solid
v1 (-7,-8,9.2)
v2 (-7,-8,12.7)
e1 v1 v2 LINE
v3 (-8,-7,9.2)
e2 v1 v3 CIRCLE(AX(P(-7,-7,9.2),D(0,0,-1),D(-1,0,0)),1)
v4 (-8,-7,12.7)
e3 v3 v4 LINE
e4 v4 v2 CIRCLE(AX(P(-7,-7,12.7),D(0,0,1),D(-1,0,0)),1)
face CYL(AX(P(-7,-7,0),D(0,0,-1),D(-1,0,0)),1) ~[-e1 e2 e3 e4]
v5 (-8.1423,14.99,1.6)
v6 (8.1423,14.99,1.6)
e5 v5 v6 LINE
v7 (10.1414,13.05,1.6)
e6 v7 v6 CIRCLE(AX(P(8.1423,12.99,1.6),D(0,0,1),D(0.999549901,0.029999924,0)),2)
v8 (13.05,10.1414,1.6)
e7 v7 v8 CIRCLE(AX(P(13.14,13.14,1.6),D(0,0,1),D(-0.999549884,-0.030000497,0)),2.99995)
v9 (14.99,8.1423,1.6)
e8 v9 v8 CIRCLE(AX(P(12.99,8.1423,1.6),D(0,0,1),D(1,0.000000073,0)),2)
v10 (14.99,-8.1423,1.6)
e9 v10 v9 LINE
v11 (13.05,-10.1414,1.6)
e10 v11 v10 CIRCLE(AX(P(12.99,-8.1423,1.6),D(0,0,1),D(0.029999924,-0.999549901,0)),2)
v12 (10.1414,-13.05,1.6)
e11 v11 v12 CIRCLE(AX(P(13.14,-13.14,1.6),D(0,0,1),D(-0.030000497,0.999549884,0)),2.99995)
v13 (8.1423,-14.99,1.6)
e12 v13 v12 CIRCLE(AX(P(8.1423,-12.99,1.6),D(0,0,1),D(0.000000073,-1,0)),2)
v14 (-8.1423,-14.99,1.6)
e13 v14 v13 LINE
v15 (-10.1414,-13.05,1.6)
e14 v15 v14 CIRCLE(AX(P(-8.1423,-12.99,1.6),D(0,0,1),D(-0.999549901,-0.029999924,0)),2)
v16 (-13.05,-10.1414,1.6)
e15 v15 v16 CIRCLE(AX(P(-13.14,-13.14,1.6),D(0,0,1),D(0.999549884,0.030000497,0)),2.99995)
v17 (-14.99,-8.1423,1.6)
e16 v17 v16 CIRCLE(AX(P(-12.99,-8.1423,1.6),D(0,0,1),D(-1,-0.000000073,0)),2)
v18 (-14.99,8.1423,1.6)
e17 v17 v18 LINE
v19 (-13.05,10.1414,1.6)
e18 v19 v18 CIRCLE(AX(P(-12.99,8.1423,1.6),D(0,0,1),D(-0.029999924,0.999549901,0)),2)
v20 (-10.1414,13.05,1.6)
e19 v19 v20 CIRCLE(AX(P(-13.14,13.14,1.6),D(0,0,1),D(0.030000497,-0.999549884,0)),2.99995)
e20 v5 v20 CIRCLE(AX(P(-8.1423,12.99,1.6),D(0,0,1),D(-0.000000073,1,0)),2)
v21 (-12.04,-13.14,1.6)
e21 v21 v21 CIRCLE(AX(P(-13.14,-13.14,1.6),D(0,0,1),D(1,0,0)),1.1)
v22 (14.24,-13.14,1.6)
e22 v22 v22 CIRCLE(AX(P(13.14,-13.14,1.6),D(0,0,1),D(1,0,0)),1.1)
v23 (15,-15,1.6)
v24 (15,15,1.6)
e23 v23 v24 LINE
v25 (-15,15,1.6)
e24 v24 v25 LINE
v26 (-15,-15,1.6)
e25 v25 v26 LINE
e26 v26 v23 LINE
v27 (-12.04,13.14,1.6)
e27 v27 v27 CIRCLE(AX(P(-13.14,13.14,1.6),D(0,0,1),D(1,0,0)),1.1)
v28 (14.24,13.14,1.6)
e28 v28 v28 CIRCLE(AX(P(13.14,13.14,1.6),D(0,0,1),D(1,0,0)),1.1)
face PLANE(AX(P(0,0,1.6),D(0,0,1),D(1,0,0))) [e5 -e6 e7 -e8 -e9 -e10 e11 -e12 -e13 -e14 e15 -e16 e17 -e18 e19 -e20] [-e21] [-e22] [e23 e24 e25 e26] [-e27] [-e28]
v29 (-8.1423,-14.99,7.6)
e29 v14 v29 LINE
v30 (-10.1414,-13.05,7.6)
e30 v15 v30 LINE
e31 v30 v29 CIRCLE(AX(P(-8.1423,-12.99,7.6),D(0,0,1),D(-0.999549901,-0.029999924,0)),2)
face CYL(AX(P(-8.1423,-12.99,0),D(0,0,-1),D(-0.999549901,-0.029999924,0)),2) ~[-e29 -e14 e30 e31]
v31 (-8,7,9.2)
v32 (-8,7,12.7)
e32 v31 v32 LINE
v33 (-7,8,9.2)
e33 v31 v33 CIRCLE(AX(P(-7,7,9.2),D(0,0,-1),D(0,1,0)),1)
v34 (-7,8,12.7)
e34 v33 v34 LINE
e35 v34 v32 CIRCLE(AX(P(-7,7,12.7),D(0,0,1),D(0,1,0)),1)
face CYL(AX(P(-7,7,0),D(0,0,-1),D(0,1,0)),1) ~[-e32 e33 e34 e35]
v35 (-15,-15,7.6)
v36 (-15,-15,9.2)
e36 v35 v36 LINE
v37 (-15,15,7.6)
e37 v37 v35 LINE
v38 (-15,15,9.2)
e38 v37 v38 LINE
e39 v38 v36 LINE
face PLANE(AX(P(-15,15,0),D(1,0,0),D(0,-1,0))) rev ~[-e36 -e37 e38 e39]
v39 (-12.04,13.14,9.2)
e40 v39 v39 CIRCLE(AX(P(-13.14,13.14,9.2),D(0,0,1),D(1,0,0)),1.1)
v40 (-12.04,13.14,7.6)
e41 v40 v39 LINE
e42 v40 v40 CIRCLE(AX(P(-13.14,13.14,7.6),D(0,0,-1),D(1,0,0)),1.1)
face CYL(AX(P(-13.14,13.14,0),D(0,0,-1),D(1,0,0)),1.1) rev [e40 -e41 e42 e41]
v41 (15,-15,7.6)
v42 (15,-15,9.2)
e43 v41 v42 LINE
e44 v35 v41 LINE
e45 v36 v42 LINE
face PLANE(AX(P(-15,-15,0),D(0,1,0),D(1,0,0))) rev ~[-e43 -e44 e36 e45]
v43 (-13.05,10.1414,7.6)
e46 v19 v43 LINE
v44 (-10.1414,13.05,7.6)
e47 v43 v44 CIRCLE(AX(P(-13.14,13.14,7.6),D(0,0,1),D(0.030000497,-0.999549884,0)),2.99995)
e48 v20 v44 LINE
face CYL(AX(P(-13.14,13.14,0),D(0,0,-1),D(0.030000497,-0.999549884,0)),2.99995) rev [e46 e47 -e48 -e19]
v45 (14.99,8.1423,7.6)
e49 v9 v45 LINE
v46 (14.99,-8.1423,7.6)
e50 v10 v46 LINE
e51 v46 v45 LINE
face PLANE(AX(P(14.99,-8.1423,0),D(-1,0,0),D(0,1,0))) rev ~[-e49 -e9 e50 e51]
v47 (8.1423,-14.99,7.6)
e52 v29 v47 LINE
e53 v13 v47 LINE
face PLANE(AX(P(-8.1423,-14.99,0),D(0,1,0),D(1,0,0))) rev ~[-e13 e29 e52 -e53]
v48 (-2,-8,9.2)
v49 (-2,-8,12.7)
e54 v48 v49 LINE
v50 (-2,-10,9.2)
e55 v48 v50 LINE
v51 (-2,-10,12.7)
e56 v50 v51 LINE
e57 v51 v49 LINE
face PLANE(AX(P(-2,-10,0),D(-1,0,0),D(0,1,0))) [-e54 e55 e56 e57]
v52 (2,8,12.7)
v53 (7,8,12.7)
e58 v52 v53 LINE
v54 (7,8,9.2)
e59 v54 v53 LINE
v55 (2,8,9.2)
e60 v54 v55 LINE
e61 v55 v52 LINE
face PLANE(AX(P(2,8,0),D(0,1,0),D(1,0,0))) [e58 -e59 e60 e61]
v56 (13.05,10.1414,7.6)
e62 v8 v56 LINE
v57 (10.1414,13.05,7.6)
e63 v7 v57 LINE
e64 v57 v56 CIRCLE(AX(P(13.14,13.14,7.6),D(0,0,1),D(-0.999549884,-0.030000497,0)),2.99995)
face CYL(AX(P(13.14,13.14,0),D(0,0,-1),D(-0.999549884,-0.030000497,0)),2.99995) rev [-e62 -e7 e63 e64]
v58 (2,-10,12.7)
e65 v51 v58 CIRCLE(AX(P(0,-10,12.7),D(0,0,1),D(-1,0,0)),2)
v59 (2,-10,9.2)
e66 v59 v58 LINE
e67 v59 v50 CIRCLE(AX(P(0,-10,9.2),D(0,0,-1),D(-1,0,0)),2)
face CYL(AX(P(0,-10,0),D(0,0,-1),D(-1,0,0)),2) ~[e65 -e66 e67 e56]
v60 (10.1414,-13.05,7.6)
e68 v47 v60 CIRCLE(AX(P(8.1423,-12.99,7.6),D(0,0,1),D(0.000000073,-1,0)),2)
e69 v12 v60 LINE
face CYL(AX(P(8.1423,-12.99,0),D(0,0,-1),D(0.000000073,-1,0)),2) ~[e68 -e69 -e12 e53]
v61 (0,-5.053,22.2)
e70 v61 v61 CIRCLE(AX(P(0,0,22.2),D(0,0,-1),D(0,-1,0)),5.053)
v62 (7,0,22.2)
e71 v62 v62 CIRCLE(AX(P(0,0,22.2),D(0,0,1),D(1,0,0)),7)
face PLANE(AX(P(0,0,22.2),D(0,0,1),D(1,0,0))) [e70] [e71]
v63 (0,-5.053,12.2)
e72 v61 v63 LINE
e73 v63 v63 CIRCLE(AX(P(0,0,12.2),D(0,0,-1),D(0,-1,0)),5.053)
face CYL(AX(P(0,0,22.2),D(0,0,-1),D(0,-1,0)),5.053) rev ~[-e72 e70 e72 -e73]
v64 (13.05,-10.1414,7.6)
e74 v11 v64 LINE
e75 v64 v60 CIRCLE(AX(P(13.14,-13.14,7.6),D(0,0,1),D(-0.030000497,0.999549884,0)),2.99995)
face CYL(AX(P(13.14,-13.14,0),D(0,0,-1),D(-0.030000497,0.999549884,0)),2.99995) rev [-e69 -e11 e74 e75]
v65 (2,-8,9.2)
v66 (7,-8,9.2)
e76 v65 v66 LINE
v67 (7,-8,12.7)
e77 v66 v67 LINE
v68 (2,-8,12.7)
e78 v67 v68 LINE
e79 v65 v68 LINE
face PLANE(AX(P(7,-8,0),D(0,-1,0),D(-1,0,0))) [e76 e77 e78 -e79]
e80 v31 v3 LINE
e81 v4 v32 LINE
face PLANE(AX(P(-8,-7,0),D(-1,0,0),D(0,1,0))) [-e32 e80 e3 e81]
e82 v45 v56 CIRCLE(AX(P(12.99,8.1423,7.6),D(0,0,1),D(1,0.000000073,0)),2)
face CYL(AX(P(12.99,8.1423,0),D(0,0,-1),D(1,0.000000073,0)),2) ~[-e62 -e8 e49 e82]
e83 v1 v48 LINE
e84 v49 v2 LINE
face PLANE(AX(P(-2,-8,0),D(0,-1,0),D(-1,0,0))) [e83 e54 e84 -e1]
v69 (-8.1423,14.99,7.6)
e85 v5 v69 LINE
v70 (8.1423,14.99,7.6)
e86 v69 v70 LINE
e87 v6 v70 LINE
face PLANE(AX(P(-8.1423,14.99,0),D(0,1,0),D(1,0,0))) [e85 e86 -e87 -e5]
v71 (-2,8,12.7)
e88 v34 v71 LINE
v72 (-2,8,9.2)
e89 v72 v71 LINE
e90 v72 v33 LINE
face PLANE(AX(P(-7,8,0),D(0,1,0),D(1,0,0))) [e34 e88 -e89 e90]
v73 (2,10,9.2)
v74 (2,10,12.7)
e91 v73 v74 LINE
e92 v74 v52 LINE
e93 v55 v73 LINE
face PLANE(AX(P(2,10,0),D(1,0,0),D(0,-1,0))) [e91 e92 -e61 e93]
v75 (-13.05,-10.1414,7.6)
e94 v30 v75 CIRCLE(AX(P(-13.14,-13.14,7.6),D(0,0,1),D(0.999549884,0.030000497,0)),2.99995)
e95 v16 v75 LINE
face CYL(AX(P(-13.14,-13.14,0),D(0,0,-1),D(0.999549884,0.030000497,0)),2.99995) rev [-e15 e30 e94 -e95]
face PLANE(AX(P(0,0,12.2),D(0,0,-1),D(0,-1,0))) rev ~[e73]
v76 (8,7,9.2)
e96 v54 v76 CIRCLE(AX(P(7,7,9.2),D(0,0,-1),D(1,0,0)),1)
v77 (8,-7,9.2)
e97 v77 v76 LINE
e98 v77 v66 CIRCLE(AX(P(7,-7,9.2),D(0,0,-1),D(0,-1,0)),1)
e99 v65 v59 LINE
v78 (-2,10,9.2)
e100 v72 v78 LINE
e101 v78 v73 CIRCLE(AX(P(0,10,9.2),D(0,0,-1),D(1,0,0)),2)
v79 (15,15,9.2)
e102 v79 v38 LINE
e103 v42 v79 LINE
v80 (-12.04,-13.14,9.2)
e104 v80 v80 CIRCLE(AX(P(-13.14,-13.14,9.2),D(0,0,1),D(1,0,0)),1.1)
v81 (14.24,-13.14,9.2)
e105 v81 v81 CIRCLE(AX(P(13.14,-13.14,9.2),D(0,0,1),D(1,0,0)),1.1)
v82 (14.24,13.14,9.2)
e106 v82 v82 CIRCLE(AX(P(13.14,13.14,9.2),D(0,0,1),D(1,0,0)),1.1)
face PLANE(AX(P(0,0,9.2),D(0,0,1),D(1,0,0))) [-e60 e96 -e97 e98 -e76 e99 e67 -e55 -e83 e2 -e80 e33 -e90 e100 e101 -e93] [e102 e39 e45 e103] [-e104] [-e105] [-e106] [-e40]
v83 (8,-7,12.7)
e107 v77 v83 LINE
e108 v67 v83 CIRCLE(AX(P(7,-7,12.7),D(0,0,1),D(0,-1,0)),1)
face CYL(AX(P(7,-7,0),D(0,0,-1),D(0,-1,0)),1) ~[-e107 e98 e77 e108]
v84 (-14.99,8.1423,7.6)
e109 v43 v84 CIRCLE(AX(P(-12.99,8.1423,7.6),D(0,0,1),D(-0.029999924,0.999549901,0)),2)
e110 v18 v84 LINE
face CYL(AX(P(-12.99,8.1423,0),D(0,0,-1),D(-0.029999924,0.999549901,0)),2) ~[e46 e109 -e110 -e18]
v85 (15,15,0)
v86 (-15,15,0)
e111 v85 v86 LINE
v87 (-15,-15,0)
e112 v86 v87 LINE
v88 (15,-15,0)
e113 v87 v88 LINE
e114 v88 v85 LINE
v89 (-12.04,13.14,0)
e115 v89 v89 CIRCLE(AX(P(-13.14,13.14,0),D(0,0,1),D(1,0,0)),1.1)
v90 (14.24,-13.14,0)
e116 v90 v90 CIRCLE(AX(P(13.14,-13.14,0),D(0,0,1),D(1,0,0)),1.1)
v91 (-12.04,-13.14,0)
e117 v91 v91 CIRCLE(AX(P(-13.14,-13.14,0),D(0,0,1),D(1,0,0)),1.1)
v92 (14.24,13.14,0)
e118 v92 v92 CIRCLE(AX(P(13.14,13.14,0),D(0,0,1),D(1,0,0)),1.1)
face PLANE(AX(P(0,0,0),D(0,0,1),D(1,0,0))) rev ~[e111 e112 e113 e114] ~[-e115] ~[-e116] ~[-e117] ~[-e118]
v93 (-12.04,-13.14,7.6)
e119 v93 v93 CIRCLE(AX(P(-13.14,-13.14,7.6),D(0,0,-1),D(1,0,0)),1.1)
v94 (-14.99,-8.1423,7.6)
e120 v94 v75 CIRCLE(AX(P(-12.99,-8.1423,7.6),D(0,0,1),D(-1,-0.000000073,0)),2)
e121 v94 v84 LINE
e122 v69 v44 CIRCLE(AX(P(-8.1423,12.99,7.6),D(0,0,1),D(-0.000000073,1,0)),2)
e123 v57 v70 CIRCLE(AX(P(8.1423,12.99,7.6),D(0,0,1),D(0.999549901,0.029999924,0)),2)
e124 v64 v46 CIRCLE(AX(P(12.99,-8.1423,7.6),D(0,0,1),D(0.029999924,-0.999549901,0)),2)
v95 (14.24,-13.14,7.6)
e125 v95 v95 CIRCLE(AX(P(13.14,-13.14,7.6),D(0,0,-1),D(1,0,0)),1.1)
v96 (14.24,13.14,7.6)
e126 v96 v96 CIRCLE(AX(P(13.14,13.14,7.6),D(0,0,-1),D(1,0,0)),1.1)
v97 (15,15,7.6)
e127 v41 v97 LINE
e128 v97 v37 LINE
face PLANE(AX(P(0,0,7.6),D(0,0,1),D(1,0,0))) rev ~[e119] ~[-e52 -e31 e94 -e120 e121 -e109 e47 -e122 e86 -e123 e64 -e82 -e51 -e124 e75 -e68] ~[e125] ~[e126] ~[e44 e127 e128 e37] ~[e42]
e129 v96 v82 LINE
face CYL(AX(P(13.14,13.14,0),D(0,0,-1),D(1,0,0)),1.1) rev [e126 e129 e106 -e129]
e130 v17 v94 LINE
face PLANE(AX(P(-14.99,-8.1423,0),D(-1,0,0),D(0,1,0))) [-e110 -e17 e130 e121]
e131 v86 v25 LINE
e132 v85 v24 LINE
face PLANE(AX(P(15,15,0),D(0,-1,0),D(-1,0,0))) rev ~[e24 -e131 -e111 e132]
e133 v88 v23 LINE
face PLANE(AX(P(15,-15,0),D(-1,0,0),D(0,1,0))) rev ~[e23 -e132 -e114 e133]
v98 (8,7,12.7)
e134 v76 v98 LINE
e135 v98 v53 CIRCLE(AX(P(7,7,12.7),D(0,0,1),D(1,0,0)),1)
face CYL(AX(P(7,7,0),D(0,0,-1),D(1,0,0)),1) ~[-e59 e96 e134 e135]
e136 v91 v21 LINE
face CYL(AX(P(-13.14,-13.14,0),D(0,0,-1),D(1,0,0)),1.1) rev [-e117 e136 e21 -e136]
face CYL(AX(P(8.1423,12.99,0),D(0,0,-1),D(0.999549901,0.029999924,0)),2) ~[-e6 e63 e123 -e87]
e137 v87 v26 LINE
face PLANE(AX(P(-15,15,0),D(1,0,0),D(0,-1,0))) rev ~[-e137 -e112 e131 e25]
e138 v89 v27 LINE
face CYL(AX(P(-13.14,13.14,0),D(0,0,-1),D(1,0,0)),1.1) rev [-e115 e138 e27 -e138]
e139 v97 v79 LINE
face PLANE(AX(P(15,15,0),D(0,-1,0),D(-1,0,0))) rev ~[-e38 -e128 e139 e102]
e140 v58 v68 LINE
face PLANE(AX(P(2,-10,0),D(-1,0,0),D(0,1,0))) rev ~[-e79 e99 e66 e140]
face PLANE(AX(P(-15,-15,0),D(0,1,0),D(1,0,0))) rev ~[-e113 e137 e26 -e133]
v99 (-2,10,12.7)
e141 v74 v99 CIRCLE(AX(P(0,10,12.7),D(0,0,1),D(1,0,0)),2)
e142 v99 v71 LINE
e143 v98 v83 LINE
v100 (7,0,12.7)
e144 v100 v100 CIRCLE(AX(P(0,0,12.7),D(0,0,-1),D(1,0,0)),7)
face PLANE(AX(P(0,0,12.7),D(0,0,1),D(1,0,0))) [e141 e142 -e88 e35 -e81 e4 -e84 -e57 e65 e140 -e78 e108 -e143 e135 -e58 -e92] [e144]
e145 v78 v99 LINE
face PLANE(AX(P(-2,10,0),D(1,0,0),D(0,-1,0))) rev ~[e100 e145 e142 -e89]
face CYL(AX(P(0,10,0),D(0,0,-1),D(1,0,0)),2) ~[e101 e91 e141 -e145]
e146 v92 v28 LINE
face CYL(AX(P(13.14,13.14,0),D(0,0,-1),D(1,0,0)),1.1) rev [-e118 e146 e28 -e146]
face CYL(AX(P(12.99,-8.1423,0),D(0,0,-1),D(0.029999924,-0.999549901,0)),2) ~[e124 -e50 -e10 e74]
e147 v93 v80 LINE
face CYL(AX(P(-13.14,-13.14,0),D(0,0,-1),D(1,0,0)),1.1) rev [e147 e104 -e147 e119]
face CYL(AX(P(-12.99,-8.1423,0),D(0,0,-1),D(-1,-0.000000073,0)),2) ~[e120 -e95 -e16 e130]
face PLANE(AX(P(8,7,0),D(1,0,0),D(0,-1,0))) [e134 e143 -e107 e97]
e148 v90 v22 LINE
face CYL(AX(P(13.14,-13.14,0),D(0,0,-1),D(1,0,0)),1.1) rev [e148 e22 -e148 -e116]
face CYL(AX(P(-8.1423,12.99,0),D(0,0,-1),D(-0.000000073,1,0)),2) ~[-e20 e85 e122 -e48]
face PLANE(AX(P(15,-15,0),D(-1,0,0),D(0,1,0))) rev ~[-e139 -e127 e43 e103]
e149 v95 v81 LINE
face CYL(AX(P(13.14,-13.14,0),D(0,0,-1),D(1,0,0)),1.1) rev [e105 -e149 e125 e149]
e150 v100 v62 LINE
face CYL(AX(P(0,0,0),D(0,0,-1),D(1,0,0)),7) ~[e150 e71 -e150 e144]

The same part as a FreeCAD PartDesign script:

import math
import FreeCAD as App
import Part
import Sketcher
Q = App.Units.Quantity

doc = App.newDocument("Part")
body = doc.addObject("PartDesign::Body", "Body")

sketch1 = body.newObject("Sketcher::SketchObject", "Sketch")
sketch1.AttachmentSupport = (doc.getObject("XY_Plane"), [""])
sketch1.MapMode = "FlatFace"
sketch1.addGeometry(Part.LineSegment(App.Vector(-15, 15, 0), App.Vector(-15, -15, 0)), False)
sketch1.addGeometry(Part.LineSegment(App.Vector(-15, -15, 0), App.Vector(15, -15, 0)), False)
sketch1.addGeometry(Part.LineSegment(App.Vector(15, -15, 0), App.Vector(15, 15, 0)), False)
sketch1.addGeometry(Part.LineSegment(App.Vector(15, 15, 0), App.Vector(-15, 15, 0)), False)
sketch1.addGeometry(Part.Circle(App.Vector(-13.1, -13.1, 0), App.Vector(0, 0, 1), 1.1), False)
sketch1.addGeometry(Part.Circle(App.Vector(13.1, -13.1, 0), App.Vector(0, 0, 1), 1.1), False)
sketch1.addGeometry(Part.Circle(App.Vector(-13.1, 13.1, 0), App.Vector(0, 0, 1), 1.1), False)
sketch1.addGeometry(Part.Circle(App.Vector(13.1, 13.1, 0), App.Vector(0, 0, 1), 1.1), False)
sketch1.addConstraint(Sketcher.Constraint("Coincident", 0, 2, 1, 1))
sketch1.addConstraint(Sketcher.Constraint("Coincident", 1, 2, 2, 1))
sketch1.addConstraint(Sketcher.Constraint("Coincident", 2, 2, 3, 1))
sketch1.addConstraint(Sketcher.Constraint("Coincident", 3, 2, 0, 1))
sketch1.addConstraint(Sketcher.Constraint("Vertical", 0))
sketch1.addConstraint(Sketcher.Constraint("Horizontal", 1))
sketch1.addConstraint(Sketcher.Constraint("Vertical", 2))
sketch1.addConstraint(Sketcher.Constraint("Horizontal", 3))
sketch1.addConstraint(Sketcher.Constraint("Equal", 4, 5))
sketch1.addConstraint(Sketcher.Constraint("Equal", 5, 6))
sketch1.addConstraint(Sketcher.Constraint("Equal", 6, 7))
sketch1.addConstraint(Sketcher.Constraint("Symmetric", 5, 3, 6, 3, -1, 1))
sketch1.addConstraint(Sketcher.Constraint("Symmetric", 4, 3, 7, 3, -1, 1))
sketch1.addConstraint(Sketcher.Constraint("Symmetric", 0, 2, 2, 2, -1, 1))
sketch1.addConstraint(Sketcher.Constraint("Symmetric", 4, 3, 5, 3, -2))
sketch1.addConstraint(Sketcher.Constraint("Equal", 3, 0))
sketch1.addConstraint(Sketcher.Constraint("Diameter", 4, Q("2.2 mm")))
sketch1.addConstraint(Sketcher.Constraint("DistanceX", 1, 1, 1, 2, Q("30 mm")))
sketch1.addConstraint(Sketcher.Constraint("DistanceX", 4, 3, 5, 3, Q("26.28 mm")))
sketch1.addConstraint(Sketcher.Constraint("DistanceY", 4, 3, 6, 3, Q("26.28 mm")))
pad1 = body.newObject("PartDesign::Pad", "Pad")
pad1.Profile = sketch1
pad1.Length = 9.2

sketch2 = body.newObject("Sketcher::SketchObject", "Sketch001")
sketch2.AttachmentSupport = (doc.getObject("XY_Plane"), [""])
sketch2.MapMode = "FlatFace"
sketch2.addGeometry(Part.LineSegment(App.Vector(-15, 15, 0), App.Vector(-15, -15, 0)), False)
sketch2.addGeometry(Part.LineSegment(App.Vector(-15, -15, 0), App.Vector(15, -15, 0)), False)
sketch2.addGeometry(Part.LineSegment(App.Vector(15, -15, 0), App.Vector(15, 15, 0)), False)
sketch2.addGeometry(Part.LineSegment(App.Vector(15, 15, 0), App.Vector(-15, 15, 0)), False)
sketch2.addGeometry(Part.ArcOfCircle(Part.Circle(App.Vector(-8.1, -13, 0), App.Vector(0, 0, 1), 2), math.radians(-178), math.radians(-90)), False)
sketch2.addGeometry(Part.ArcOfCircle(Part.Circle(App.Vector(-13.1, -13.1, 0), App.Vector(0, 0, 1), 3), math.radians(2), math.radians(88)), False)
sketch2.addGeometry(Part.ArcOfCircle(Part.Circle(App.Vector(-13, -8.1, 0), App.Vector(0, 0, 1), 2), math.radians(180), math.radians(268)), False)
sketch2.addGeometry(Part.LineSegment(App.Vector(-15, -8.1, 0), App.Vector(-15, 8.1, 0)), False)
sketch2.addGeometry(Part.ArcOfCircle(Part.Circle(App.Vector(-13, 8.1, 0), App.Vector(0, 0, 1), 2), math.radians(92), math.radians(180)), False)
sketch2.addGeometry(Part.ArcOfCircle(Part.Circle(App.Vector(-13.1, 13.1, 0), App.Vector(0, 0, 1), 3), math.radians(-88), math.radians(-2)), False)
sketch2.addGeometry(Part.ArcOfCircle(Part.Circle(App.Vector(-8.1, 13, 0), App.Vector(0, 0, 1), 2), math.radians(90), math.radians(178)), False)
sketch2.addGeometry(Part.LineSegment(App.Vector(-8.1, 15, 0), App.Vector(8.1, 15, 0)), False)
sketch2.addGeometry(Part.ArcOfCircle(Part.Circle(App.Vector(8.1, 13, 0), App.Vector(0, 0, 1), 2), math.radians(2), math.radians(90)), False)
sketch2.addGeometry(Part.ArcOfCircle(Part.Circle(App.Vector(13.1, 13.1, 0), App.Vector(0, 0, 1), 3), math.radians(-178), math.radians(-92)), False)
sketch2.addGeometry(Part.ArcOfCircle(Part.Circle(App.Vector(13, 8.1, 0), App.Vector(0, 0, 1), 2), math.radians(0), math.radians(88)), False)
sketch2.addGeometry(Part.LineSegment(App.Vector(15, 8.1, 0), App.Vector(15, -8.1, 0)), False)
sketch2.addGeometry(Part.ArcOfCircle(Part.Circle(App.Vector(13, -8.1, 0), App.Vector(0, 0, 1), 2), math.radians(-88), math.radians(0)), False)
sketch2.addGeometry(Part.ArcOfCircle(Part.Circle(App.Vector(13.1, -13.1, 0), App.Vector(0, 0, 1), 3), math.radians(92), math.radians(178)), False)
sketch2.addGeometry(Part.ArcOfCircle(Part.Circle(App.Vector(8.1, -13, 0), App.Vector(0, 0, 1), 2), math.radians(-90), math.radians(-2)), False)
sketch2.addGeometry(Part.LineSegment(App.Vector(8.1, -15, 0), App.Vector(-8.1, -15, 0)), False)
sketch2.addConstraint(Sketcher.Constraint("Coincident", 0, 2, 1, 1))
sketch2.addConstraint(Sketcher.Constraint("Coincident", 1, 2, 2, 1))
sketch2.addConstraint(Sketcher.Constraint("Coincident", 2, 2, 3, 1))
sketch2.addConstraint(Sketcher.Constraint("Coincident", 3, 2, 0, 1))
sketch2.addConstraint(Sketcher.Constraint("Tangent", 4, 1, 5, 1))
sketch2.addConstraint(Sketcher.Constraint("Tangent", 5, 2, 6, 2))
sketch2.addConstraint(Sketcher.Constraint("Tangent", 6, 1, 7, 1))
sketch2.addConstraint(Sketcher.Constraint("Tangent", 7, 2, 8, 2))
sketch2.addConstraint(Sketcher.Constraint("Tangent", 8, 1, 9, 1))
sketch2.addConstraint(Sketcher.Constraint("Tangent", 9, 2, 10, 2))
sketch2.addConstraint(Sketcher.Constraint("Tangent", 10, 1, 11, 1))
sketch2.addConstraint(Sketcher.Constraint("Tangent", 11, 2, 12, 2))
sketch2.addConstraint(Sketcher.Constraint("Tangent", 12, 1, 13, 1))
sketch2.addConstraint(Sketcher.Constraint("Tangent", 13, 2, 14, 2))
sketch2.addConstraint(Sketcher.Constraint("Tangent", 14, 1, 15, 1))
sketch2.addConstraint(Sketcher.Constraint("Tangent", 15, 2, 16, 2))
sketch2.addConstraint(Sketcher.Constraint("Tangent", 16, 1, 17, 1))
sketch2.addConstraint(Sketcher.Constraint("Tangent", 17, 2, 18, 2))
sketch2.addConstraint(Sketcher.Constraint("Tangent", 18, 1, 19, 1))
sketch2.addConstraint(Sketcher.Constraint("Tangent", 19, 2, 4, 2))
sketch2.addConstraint(Sketcher.Constraint("Vertical", 0))
sketch2.addConstraint(Sketcher.Constraint("Horizontal", 1))
sketch2.addConstraint(Sketcher.Constraint("Vertical", 2))
sketch2.addConstraint(Sketcher.Constraint("Horizontal", 3))
sketch2.addConstraint(Sketcher.Constraint("Vertical", 7))
sketch2.addConstraint(Sketcher.Constraint("Horizontal", 11))
sketch2.addConstraint(Sketcher.Constraint("Vertical", 15))
sketch2.addConstraint(Sketcher.Constraint("Horizontal", 19))
sketch2.addConstraint(Sketcher.Constraint("Equal", 4, 6))
sketch2.addConstraint(Sketcher.Constraint("Equal", 6, 8))
sketch2.addConstraint(Sketcher.Constraint("Equal", 5, 9))
sketch2.addConstraint(Sketcher.Constraint("Equal", 8, 10))
sketch2.addConstraint(Sketcher.Constraint("Equal", 10, 12))
sketch2.addConstraint(Sketcher.Constraint("Equal", 9, 13))
sketch2.addConstraint(Sketcher.Constraint("Equal", 12, 14))
sketch2.addConstraint(Sketcher.Constraint("Equal", 14, 16))
sketch2.addConstraint(Sketcher.Constraint("Equal", 13, 17))
sketch2.addConstraint(Sketcher.Constraint("Equal", 16, 18))
sketch2.addConstraint(Sketcher.Constraint("Symmetric", 4, 3, 12, 3, -1, 1))
sketch2.addConstraint(Sketcher.Constraint("Symmetric", 6, 3, 14, 3, -1, 1))
sketch2.addConstraint(Sketcher.Constraint("Symmetric", 9, 3, 17, 3, -1, 1))
sketch2.addConstraint(Sketcher.Constraint("Symmetric", 0, 2, 2, 2, -1, 1))
sketch2.addConstraint(Sketcher.Constraint("Symmetric", 9, 3, 13, 3, -2))
sketch2.addConstraint(Sketcher.Constraint("Equal", 3, 0))
sketch2.addConstraint(Sketcher.Constraint("Equal", 19, 7))
sketch2.addConstraint(Sketcher.Constraint("Radius", 4, Q("2 mm")))
sketch2.addConstraint(Sketcher.Constraint("Radius", 5, Q("3 mm")))
sketch2.addConstraint(Sketcher.Constraint("DistanceX", 1, 1, 1, 2, Q("30 mm")))
sketch2.addConstraint(Sketcher.Constraint("DistanceY", 5, 3, 9, 3, Q("26.28 mm")))
sketch2.addConstraint(Sketcher.Constraint("DistanceX", 9, 3, 13, 3, Q("26.28 mm")))
sketch2.addConstraint(Sketcher.Constraint("DistanceX", 0, 2, 6, 1, Q("0.01 mm")))
pocket1 = body.newObject("PartDesign::Pocket", "Pocket")
pocket1.Profile = sketch2
pocket1.Length = 7.6
pocket1.Reversed = True

sketch3 = body.newObject("Sketcher::SketchObject", "Sketch002")
sketch3.AttachmentSupport = (doc.getObject("XY_Plane"), [""])
sketch3.MapMode = "FlatFace"
sketch3.addGeometry(Part.LineSegment(App.Vector(-15, 15, 0), App.Vector(-15, -15, 0)), False)
sketch3.addGeometry(Part.LineSegment(App.Vector(-15, -15, 0), App.Vector(15, -15, 0)), False)
sketch3.addGeometry(Part.LineSegment(App.Vector(15, -15, 0), App.Vector(15, 15, 0)), False)
sketch3.addGeometry(Part.LineSegment(App.Vector(15, 15, 0), App.Vector(-15, 15, 0)), False)
sketch3.addGeometry(Part.Circle(App.Vector(-13.1, -13.1, 0), App.Vector(0, 0, 1), 1.1), False)
sketch3.addGeometry(Part.Circle(App.Vector(13.1, -13.1, 0), App.Vector(0, 0, 1), 1.1), False)
sketch3.addGeometry(Part.Circle(App.Vector(-13.1, 13.1, 0), App.Vector(0, 0, 1), 1.1), False)
sketch3.addGeometry(Part.ArcOfCircle(Part.Circle(App.Vector(-8.1, -13, 0), App.Vector(0, 0, 1), 2), math.radians(-178), math.radians(-90)), False)
sketch3.addGeometry(Part.ArcOfCircle(Part.Circle(App.Vector(-13.1, -13.1, 0), App.Vector(0, 0, 1), 3), math.radians(2), math.radians(88)), False)
sketch3.addGeometry(Part.ArcOfCircle(Part.Circle(App.Vector(-13, -8.1, 0), App.Vector(0, 0, 1), 2), math.radians(180), math.radians(268)), False)
sketch3.addGeometry(Part.LineSegment(App.Vector(-15, -8.1, 0), App.Vector(-15, 8.1, 0)), False)
sketch3.addGeometry(Part.ArcOfCircle(Part.Circle(App.Vector(-13, 8.1, 0), App.Vector(0, 0, 1), 2), math.radians(92), math.radians(180)), False)
sketch3.addGeometry(Part.ArcOfCircle(Part.Circle(App.Vector(-13.1, 13.1, 0), App.Vector(0, 0, 1), 3), math.radians(-88), math.radians(-2)), False)
sketch3.addGeometry(Part.ArcOfCircle(Part.Circle(App.Vector(-8.1, 13, 0), App.Vector(0, 0, 1), 2), math.radians(90), math.radians(178)), False)
sketch3.addGeometry(Part.LineSegment(App.Vector(-8.1, 15, 0), App.Vector(8.1, 15, 0)), False)
sketch3.addGeometry(Part.ArcOfCircle(Part.Circle(App.Vector(8.1, 13, 0), App.Vector(0, 0, 1), 2), math.radians(2), math.radians(90)), False)
sketch3.addGeometry(Part.ArcOfCircle(Part.Circle(App.Vector(13.1, 13.1, 0), App.Vector(0, 0, 1), 3), math.radians(-178), math.radians(-92)), False)
sketch3.addGeometry(Part.ArcOfCircle(Part.Circle(App.Vector(13, 8.1, 0), App.Vector(0, 0, 1), 2), math.radians(0), math.radians(88)), False)
sketch3.addGeometry(Part.LineSegment(App.Vector(15, 8.1, 0), App.Vector(15, -8.1, 0)), False)
sketch3.addGeometry(Part.ArcOfCircle(Part.Circle(App.Vector(13, -8.1, 0), App.Vector(0, 0, 1), 2), math.radians(-88), math.radians(0)), False)
sketch3.addGeometry(Part.ArcOfCircle(Part.Circle(App.Vector(13.1, -13.1, 0), App.Vector(0, 0, 1), 3), math.radians(92), math.radians(178)), False)
sketch3.addGeometry(Part.ArcOfCircle(Part.Circle(App.Vector(8.1, -13, 0), App.Vector(0, 0, 1), 2), math.radians(-90), math.radians(-2)), False)
sketch3.addGeometry(Part.LineSegment(App.Vector(8.1, -15, 0), App.Vector(-8.1, -15, 0)), False)
sketch3.addGeometry(Part.Circle(App.Vector(13.1, 13.1, 0), App.Vector(0, 0, 1), 1.1), False)
sketch3.addConstraint(Sketcher.Constraint("Coincident", 0, 2, 1, 1))
sketch3.addConstraint(Sketcher.Constraint("Coincident", 1, 2, 2, 1))
sketch3.addConstraint(Sketcher.Constraint("Coincident", 2, 2, 3, 1))
sketch3.addConstraint(Sketcher.Constraint("Coincident", 3, 2, 0, 1))
sketch3.addConstraint(Sketcher.Constraint("Tangent", 7, 1, 8, 1))
sketch3.addConstraint(Sketcher.Constraint("Tangent", 8, 2, 9, 2))
sketch3.addConstraint(Sketcher.Constraint("Tangent", 9, 1, 10, 1))
sketch3.addConstraint(Sketcher.Constraint("Tangent", 10, 2, 11, 2))
sketch3.addConstraint(Sketcher.Constraint("Tangent", 11, 1, 12, 1))
sketch3.addConstraint(Sketcher.Constraint("Tangent", 12, 2, 13, 2))
sketch3.addConstraint(Sketcher.Constraint("Tangent", 13, 1, 14, 1))
sketch3.addConstraint(Sketcher.Constraint("Tangent", 14, 2, 15, 2))
sketch3.addConstraint(Sketcher.Constraint("Tangent", 15, 1, 16, 1))
sketch3.addConstraint(Sketcher.Constraint("Tangent", 16, 2, 17, 2))
sketch3.addConstraint(Sketcher.Constraint("Tangent", 17, 1, 18, 1))
sketch3.addConstraint(Sketcher.Constraint("Tangent", 18, 2, 19, 2))
sketch3.addConstraint(Sketcher.Constraint("Tangent", 19, 1, 20, 1))
sketch3.addConstraint(Sketcher.Constraint("Tangent", 20, 2, 21, 2))
sketch3.addConstraint(Sketcher.Constraint("Tangent", 21, 1, 22, 1))
sketch3.addConstraint(Sketcher.Constraint("Tangent", 22, 2, 7, 2))
sketch3.addConstraint(Sketcher.Constraint("Vertical", 0))
sketch3.addConstraint(Sketcher.Constraint("Horizontal", 1))
sketch3.addConstraint(Sketcher.Constraint("Vertical", 2))
sketch3.addConstraint(Sketcher.Constraint("Horizontal", 3))
sketch3.addConstraint(Sketcher.Constraint("Vertical", 10))
sketch3.addConstraint(Sketcher.Constraint("Horizontal", 14))
sketch3.addConstraint(Sketcher.Constraint("Vertical", 18))
sketch3.addConstraint(Sketcher.Constraint("Horizontal", 22))
sketch3.addConstraint(Sketcher.Constraint("Coincident", 8, 3, 4, 3))
sketch3.addConstraint(Sketcher.Constraint("Coincident", 12, 3, 6, 3))
sketch3.addConstraint(Sketcher.Constraint("Coincident", 20, 3, 5, 3))
sketch3.addConstraint(Sketcher.Constraint("Coincident", 23, 3, 16, 3))
sketch3.addConstraint(Sketcher.Constraint("Equal", 4, 5))
sketch3.addConstraint(Sketcher.Constraint("Equal", 5, 6))
sketch3.addConstraint(Sketcher.Constraint("Equal", 7, 9))
sketch3.addConstraint(Sketcher.Constraint("Equal", 9, 11))
sketch3.addConstraint(Sketcher.Constraint("Equal", 8, 12))
sketch3.addConstraint(Sketcher.Constraint("Equal", 11, 13))
sketch3.addConstraint(Sketcher.Constraint("Equal", 13, 15))
sketch3.addConstraint(Sketcher.Constraint("Equal", 12, 16))
sketch3.addConstraint(Sketcher.Constraint("Equal", 15, 17))
sketch3.addConstraint(Sketcher.Constraint("Equal", 17, 19))
sketch3.addConstraint(Sketcher.Constraint("Equal", 16, 20))
sketch3.addConstraint(Sketcher.Constraint("Equal", 19, 21))
sketch3.addConstraint(Sketcher.Constraint("Equal", 6, 23))
sketch3.addConstraint(Sketcher.Constraint("Symmetric", 5, 3, 6, 3, -1, 1))
sketch3.addConstraint(Sketcher.Constraint("Symmetric", 7, 3, 15, 3, -1, 1))
sketch3.addConstraint(Sketcher.Constraint("Symmetric", 9, 3, 17, 3, -1, 1))
sketch3.addConstraint(Sketcher.Constraint("Symmetric", 0, 2, 2, 2, -1, 1))
sketch3.addConstraint(Sketcher.Constraint("Symmetric", 4, 3, 5, 3, -2))
sketch3.addConstraint(Sketcher.Constraint("Equal", 3, 0))
sketch3.addConstraint(Sketcher.Constraint("Equal", 22, 10))
sketch3.addConstraint(Sketcher.Constraint("Radius", 7, Q("2 mm")))
sketch3.addConstraint(Sketcher.Constraint("Radius", 8, Q("3 mm")))
sketch3.addConstraint(Sketcher.Constraint("Diameter", 4, Q("2.2 mm")))
sketch3.addConstraint(Sketcher.Constraint("DistanceX", 1, 1, 1, 2, Q("30 mm")))
sketch3.addConstraint(Sketcher.Constraint("DistanceX", 4, 3, 5, 3, Q("26.28 mm")))
sketch3.addConstraint(Sketcher.Constraint("DistanceY", 4, 3, 6, 3, Q("26.28 mm")))
sketch3.addConstraint(Sketcher.Constraint("DistanceX", 0, 2, 9, 1, Q("0.01 mm")))
pad2 = body.newObject("PartDesign::Pad", "Pad001")
pad2.Profile = sketch3
pad2.Length = 1.6

sketch4 = body.newObject("Sketcher::SketchObject", "Sketch003")
sketch4.AttachmentSupport = (doc.getObject("XY_Plane"), [""])
sketch4.MapMode = "FlatFace"
sketch4.addGeometry(Part.LineSegment(App.Vector(-2, 8, 0), App.Vector(-7, 8, 0)), False)
sketch4.addGeometry(Part.ArcOfCircle(Part.Circle(App.Vector(-7, 7, 0), App.Vector(0, 0, 1), 1), math.radians(90), math.radians(180)), False)
sketch4.addGeometry(Part.LineSegment(App.Vector(-8, 7, 0), App.Vector(-8, -7, 0)), False)
sketch4.addGeometry(Part.ArcOfCircle(Part.Circle(App.Vector(-7, -7, 0), App.Vector(0, 0, 1), 1), math.radians(180), math.radians(270)), False)
sketch4.addGeometry(Part.LineSegment(App.Vector(-7, -8, 0), App.Vector(-2, -8, 0)), False)
sketch4.addGeometry(Part.LineSegment(App.Vector(-2, -8, 0), App.Vector(-2, -10, 0)), False)
sketch4.addGeometry(Part.ArcOfCircle(Part.Circle(App.Vector(0, -10, 0), App.Vector(0, 0, 1), 2), math.radians(180), math.radians(360)), False)
sketch4.addGeometry(Part.LineSegment(App.Vector(2, -10, 0), App.Vector(2, -8, 0)), False)
sketch4.addGeometry(Part.LineSegment(App.Vector(2, -8, 0), App.Vector(7, -8, 0)), False)
sketch4.addGeometry(Part.ArcOfCircle(Part.Circle(App.Vector(7, -7, 0), App.Vector(0, 0, 1), 1), math.radians(-90), math.radians(0)), False)
sketch4.addGeometry(Part.LineSegment(App.Vector(8, -7, 0), App.Vector(8, 7, 0)), False)
sketch4.addGeometry(Part.ArcOfCircle(Part.Circle(App.Vector(7, 7, 0), App.Vector(0, 0, 1), 1), math.radians(0), math.radians(90)), False)
sketch4.addGeometry(Part.LineSegment(App.Vector(7, 8, 0), App.Vector(2, 8, 0)), False)
sketch4.addGeometry(Part.LineSegment(App.Vector(2, 8, 0), App.Vector(2, 10, 0)), False)
sketch4.addGeometry(Part.ArcOfCircle(Part.Circle(App.Vector(0, 10, 0), App.Vector(0, 0, 1), 2), math.radians(0), math.radians(180)), False)
sketch4.addGeometry(Part.LineSegment(App.Vector(-2, 10, 0), App.Vector(-2, 8, 0)), False)
sketch4.addConstraint(Sketcher.Constraint("Tangent", 0, 2, 1, 1))
sketch4.addConstraint(Sketcher.Constraint("Tangent", 1, 2, 2, 1))
sketch4.addConstraint(Sketcher.Constraint("Tangent", 2, 2, 3, 1))
sketch4.addConstraint(Sketcher.Constraint("Tangent", 3, 2, 4, 1))
sketch4.addConstraint(Sketcher.Constraint("Coincident", 4, 2, 5, 1))
sketch4.addConstraint(Sketcher.Constraint("Tangent", 5, 2, 6, 1))
sketch4.addConstraint(Sketcher.Constraint("Tangent", 6, 2, 7, 1))
sketch4.addConstraint(Sketcher.Constraint("Coincident", 7, 2, 8, 1))
sketch4.addConstraint(Sketcher.Constraint("Tangent", 8, 2, 9, 1))
sketch4.addConstraint(Sketcher.Constraint("Tangent", 9, 2, 10, 1))
sketch4.addConstraint(Sketcher.Constraint("Tangent", 10, 2, 11, 1))
sketch4.addConstraint(Sketcher.Constraint("Tangent", 11, 2, 12, 1))
sketch4.addConstraint(Sketcher.Constraint("Coincident", 12, 2, 13, 1))
sketch4.addConstraint(Sketcher.Constraint("Tangent", 13, 2, 14, 1))
sketch4.addConstraint(Sketcher.Constraint("Tangent", 14, 2, 15, 1))
sketch4.addConstraint(Sketcher.Constraint("Coincident", 15, 2, 0, 1))
sketch4.addConstraint(Sketcher.Constraint("Horizontal", 0))
sketch4.addConstraint(Sketcher.Constraint("Vertical", 2))
sketch4.addConstraint(Sketcher.Constraint("Horizontal", 4))
sketch4.addConstraint(Sketcher.Constraint("Vertical", 5))
sketch4.addConstraint(Sketcher.Constraint("Vertical", 7))
sketch4.addConstraint(Sketcher.Constraint("Horizontal", 8))
sketch4.addConstraint(Sketcher.Constraint("Vertical", 10))
sketch4.addConstraint(Sketcher.Constraint("Horizontal", 12))
sketch4.addConstraint(Sketcher.Constraint("Vertical", 13))
sketch4.addConstraint(Sketcher.Constraint("Vertical", 15))
sketch4.addConstraint(Sketcher.Constraint("Equal", 1, 3))
sketch4.addConstraint(Sketcher.Constraint("Equal", 3, 9))
sketch4.addConstraint(Sketcher.Constraint("Equal", 9, 11))
sketch4.addConstraint(Sketcher.Constraint("Equal", 6, 14))
sketch4.addConstraint(Sketcher.Constraint("Symmetric", 1, 3, 9, 3, -1, 1))
sketch4.addConstraint(Sketcher.Constraint("Symmetric", 6, 3, 14, 3, -1, 1))
sketch4.addConstraint(Sketcher.Constraint("Symmetric", 4, 2, 7, 2, -2))
sketch4.addConstraint(Sketcher.Constraint("Horizontal", 1, 3, 11, 3))
sketch4.addConstraint(Sketcher.Constraint("Radius", 1, Q("1 mm")))
sketch4.addConstraint(Sketcher.Constraint("Radius", 6, Q("2 mm")))
sketch4.addConstraint(Sketcher.Constraint("DistanceY", 2, 2, 2, 1, Q("14 mm")))
sketch4.addConstraint(Sketcher.Constraint("DistanceY", 5, 2, 5, 1, Q("2 mm")))
sketch4.addConstraint(Sketcher.Constraint("DistanceX", 3, 3, 9, 3, Q("14 mm")))
pad3 = body.newObject("PartDesign::Pad", "Pad002")
pad3.Profile = sketch4
pad3.Length = 12.7

sketch5 = body.newObject("Sketcher::SketchObject", "Sketch004")
sketch5.AttachmentSupport = (doc.getObject("XY_Plane"), [""])
sketch5.MapMode = "FlatFace"
sketch5.addGeometry(Part.Circle(App.Vector(0, 0, 0), App.Vector(0, 0, 1), 7), False)
sketch5.addConstraint(Sketcher.Constraint("Coincident", 0, 3, -1, 1))
sketch5.addConstraint(Sketcher.Constraint("Diameter", 0, Q("14 mm")))
pad4 = body.newObject("PartDesign::Pad", "Pad003")
pad4.Profile = sketch5
pad4.Length = 22.2

sketch6 = body.newObject("Sketcher::SketchObject", "Sketch005")
sketch6.AttachmentSupport = (doc.getObject("XY_Plane"), [""])
sketch6.MapMode = "FlatFace"
sketch6.AttachmentOffset = App.Placement(App.Vector(0, 0, 22.2), App.Rotation())
sketch6.addGeometry(Part.Circle(App.Vector(0, 0, 0), App.Vector(0, 0, 1), 5), False)
sketch6.addConstraint(Sketcher.Constraint("Coincident", 0, 3, -1, 1))
sketch6.addConstraint(Sketcher.Constraint("Diameter", 0, Q("10.106 mm")))
doc.recompute()
hole = body.newObject("PartDesign::Hole", "Hole")
hole.Profile = sketch6
hole.ThreadType = "None"
hole.Diameter = 10.106
hole.DepthType = "Dimension"
hole.Depth = 10
hole.DrillPoint = "Flat"

doc.recompute()
